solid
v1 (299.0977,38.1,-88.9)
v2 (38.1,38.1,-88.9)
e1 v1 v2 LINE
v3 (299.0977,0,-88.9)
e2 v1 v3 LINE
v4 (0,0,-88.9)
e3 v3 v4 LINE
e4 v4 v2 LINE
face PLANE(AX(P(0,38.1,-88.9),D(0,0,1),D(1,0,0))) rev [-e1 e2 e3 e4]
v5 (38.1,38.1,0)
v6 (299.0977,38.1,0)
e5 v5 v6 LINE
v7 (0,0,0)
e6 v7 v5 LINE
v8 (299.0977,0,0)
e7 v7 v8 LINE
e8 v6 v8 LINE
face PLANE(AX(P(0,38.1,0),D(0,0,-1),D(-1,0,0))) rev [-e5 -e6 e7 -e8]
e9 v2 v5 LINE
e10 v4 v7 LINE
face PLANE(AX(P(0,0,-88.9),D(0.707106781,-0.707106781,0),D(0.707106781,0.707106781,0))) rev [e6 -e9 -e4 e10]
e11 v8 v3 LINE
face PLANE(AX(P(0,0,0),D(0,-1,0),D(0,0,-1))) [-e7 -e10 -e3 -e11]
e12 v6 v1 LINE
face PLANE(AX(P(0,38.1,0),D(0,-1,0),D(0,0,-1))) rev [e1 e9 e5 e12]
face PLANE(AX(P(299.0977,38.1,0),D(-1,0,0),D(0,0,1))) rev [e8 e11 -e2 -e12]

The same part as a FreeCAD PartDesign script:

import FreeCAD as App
import Part
import Sketcher
Q = App.Units.Quantity

doc = App.newDocument("Part")
params = doc.addObject("Spreadsheet::Sheet", "Params")
for row, (alias, value) in enumerate([
    ("sketch1_height", "3.5 in"),
    ("pad1_length", "1.5 in"),
    ("sketch2_width", "1.5 in"),
], start=1):
    params.set(f"A{row}", alias)
    params.set(f"B{row}", "=" + value)
    params.setAlias(f"B{row}", alias)

body = doc.addObject("PartDesign::Body", "Body")

# Sketch on XZ plane
sketch1 = doc.addObject("Sketcher::SketchObject", "Sketch")
body.addObject(sketch1)
sketch1.AttachmentSupport = (doc.XZ_Plane, [""])
sketch1.MapMode = "FlatFace"
sketch1.addGeometry([
    Part.LineSegment(App.Vector(0, -88.9, 0), App.Vector(0, 0, 0)),
    Part.LineSegment(App.Vector(0, 0, 0), App.Vector(299.0977, 0, 0)),
    Part.LineSegment(App.Vector(299.0977, 0, 0), App.Vector(299.0977, -88.9, 0)),
    Part.LineSegment(App.Vector(299.0977, -88.9, 0), App.Vector(0, -88.9, 0)),
], False)
sketch1.addConstraint([
    Sketcher.Constraint("Coincident", 0, 2, 1, 1),
    Sketcher.Constraint("Coincident", 1, 2, 2, 1),
    Sketcher.Constraint("Coincident", 2, 2, 3, 1),
    Sketcher.Constraint("Coincident", 3, 2, 0, 1),
    Sketcher.Constraint("Vertical", 0),
    Sketcher.Constraint("Horizontal", 1),
    Sketcher.Constraint("Vertical", 2),
    Sketcher.Constraint("Horizontal", 3),
    Sketcher.Constraint("Coincident", 0, 2, -1, 1),
    Sketcher.Constraint("DistanceY", 0, 1, 0, 2, Q("3.5 in")),
    Sketcher.Constraint("DistanceX", 1, 1, 1, 2, Q("11.7755 in")),
])
sketch1.setExpression("Constraints[9]", "Params.sketch1_height")
pad1 = doc.addObject("PartDesign::Pad", "Pad")
body.addObject(pad1)
pad1.Profile = sketch1
pad1.setExpression("Length", "Params.pad1_length")
pad1.Reversed = True

# Sketch on XY plane
sketch2 = doc.addObject("Sketcher::SketchObject", "Sketch001")
body.addObject(sketch2)
sketch2.AttachmentSupport = (doc.XY_Plane, [""])
sketch2.MapMode = "FlatFace"
sketch2.addGeometry([
    Part.LineSegment(App.Vector(0, 0, 0), App.Vector(38.1, 38.1, 0)),
    Part.LineSegment(App.Vector(38.1, 38.1, 0), App.Vector(0, 38.1, 0)),
    Part.LineSegment(App.Vector(0, 38.1, 0), App.Vector(0, 0, 0)),
], False)
sketch2.addConstraint([
    Sketcher.Constraint("Coincident", 0, 2, 1, 1),
    Sketcher.Constraint("Coincident", 1, 2, 2, 1),
    Sketcher.Constraint("Coincident", 2, 2, 0, 1),
    Sketcher.Constraint("Horizontal", 1),
    Sketcher.Constraint("Vertical", 2),
    Sketcher.Constraint("Coincident", 2, 2, -1, 1),
    Sketcher.Constraint("Equal", 1, 2),
    Sketcher.Constraint("DistanceX", 1, 2, 1, 1, Q("1.5 in")),
])
sketch2.setExpression("Constraints[7]", "Params.sketch2_width")
pocket1 = doc.addObject("PartDesign::Pocket", "Pocket")
body.addObject(pocket1)
pocket1.Profile = sketch2
pocket1.Type = "ThroughAll"

doc.recompute()
